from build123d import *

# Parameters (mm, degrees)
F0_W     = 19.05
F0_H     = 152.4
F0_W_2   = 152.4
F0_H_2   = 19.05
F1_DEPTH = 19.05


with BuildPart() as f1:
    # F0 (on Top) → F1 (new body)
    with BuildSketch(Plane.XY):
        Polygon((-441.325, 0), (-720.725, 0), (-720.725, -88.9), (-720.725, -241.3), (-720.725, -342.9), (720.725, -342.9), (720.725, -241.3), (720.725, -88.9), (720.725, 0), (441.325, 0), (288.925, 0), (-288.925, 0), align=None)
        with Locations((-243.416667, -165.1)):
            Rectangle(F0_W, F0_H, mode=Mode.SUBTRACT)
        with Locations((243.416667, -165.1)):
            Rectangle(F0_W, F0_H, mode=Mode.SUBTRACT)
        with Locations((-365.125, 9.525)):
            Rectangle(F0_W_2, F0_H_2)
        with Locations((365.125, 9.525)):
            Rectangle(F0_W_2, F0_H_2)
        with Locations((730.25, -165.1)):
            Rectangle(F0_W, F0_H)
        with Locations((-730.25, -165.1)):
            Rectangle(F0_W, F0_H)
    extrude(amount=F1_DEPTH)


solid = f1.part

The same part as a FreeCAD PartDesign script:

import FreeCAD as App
import Part
import Sketcher
from FreeCAD import Vector
Q = App.Units.Quantity

doc = App.newDocument("Part")
body = doc.addObject("PartDesign::Body", "Body")

# Sketch on XY plane
sketch1 = doc.addObject("Sketcher::SketchObject", "Sketch")
body.addObject(sketch1)
sketch1.AttachmentSupport = (doc.XY_Plane, [""])
sketch1.MapMode = "FlatFace"
sketch1.addGeometry(Part.LineSegment(Vector(-720.725, 0, 0), Vector(-720.725, -88.9, 0)), False)
sketch1.addGeometry(Part.LineSegment(Vector(-720.725, -88.9, 0), Vector(-739.775, -88.9, 0)), False)
sketch1.addGeometry(Part.LineSegment(Vector(-739.775, -88.9, 0), Vector(-739.775, -241.3, 0)), False)
sketch1.addGeometry(Part.LineSegment(Vector(-739.775, -241.3, 0), Vector(-720.725, -241.3, 0)), False)
sketch1.addGeometry(Part.LineSegment(Vector(-720.725, -241.3, 0), Vector(-720.725, -342.9, 0)), False)
sketch1.addGeometry(Part.LineSegment(Vector(-720.725, -342.9, 0), Vector(720.725, -342.9, 0)), False)
sketch1.addGeometry(Part.LineSegment(Vector(720.725, -342.9, 0), Vector(720.725, -241.3, 0)), False)
sketch1.addGeometry(Part.LineSegment(Vector(720.725, -241.3, 0), Vector(739.775, -241.3, 0)), False)
sketch1.addGeometry(Part.LineSegment(Vector(739.775, -241.3, 0), Vector(739.775, -88.9, 0)), False)
sketch1.addGeometry(Part.LineSegment(Vector(739.775, -88.9, 0), Vector(720.725, -88.9, 0)), False)
sketch1.addGeometry(Part.LineSegment(Vector(720.725, -88.9, 0), Vector(720.725, 0, 0)), False)
sketch1.addGeometry(Part.LineSegment(Vector(720.725, 0, 0), Vector(441.325, 0, 0)), False)
sketch1.addGeometry(Part.LineSegment(Vector(441.325, 0, 0), Vector(441.325, 19.05, 0)), False)
sketch1.addGeometry(Part.LineSegment(Vector(441.325, 19.05, 0), Vector(288.925, 19.05, 0)), False)
sketch1.addGeometry(Part.LineSegment(Vector(288.925, 19.05, 0), Vector(288.925, 0, 0)), False)
sketch1.addGeometry(Part.LineSegment(Vector(288.925, 0, 0), Vector(-288.925, 0, 0)), False)
sketch1.addGeometry(Part.LineSegment(Vector(-288.925, 0, 0), Vector(-288.925, 19.05, 0)), False)
sketch1.addGeometry(Part.LineSegment(Vector(-288.925, 19.05, 0), Vector(-441.325, 19.05, 0)), False)
sketch1.addGeometry(Part.LineSegment(Vector(-441.325, 19.05, 0), Vector(-441.325, 0, 0)), False)
sketch1.addGeometry(Part.LineSegment(Vector(-441.325, 0, 0), Vector(-720.725, 0, 0)), False)
sketch1.addGeometry(Part.LineSegment(Vector(-233.891667, -241.3, 0), Vector(-252.941667, -241.3, 0)), False)
sketch1.addGeometry(Part.LineSegment(Vector(-252.941667, -241.3, 0), Vector(-252.941667, -88.9, 0)), False)
sketch1.addGeometry(Part.LineSegment(Vector(-252.941667, -88.9, 0), Vector(-233.891667, -88.9, 0)), False)
sketch1.addGeometry(Part.LineSegment(Vector(-233.891667, -88.9, 0), Vector(-233.891667, -241.3, 0)), False)
sketch1.addGeometry(Part.LineSegment(Vector(252.941667, -241.3, 0), Vector(233.891667, -241.3, 0)), False)
sketch1.addGeometry(Part.LineSegment(Vector(233.891667, -241.3, 0), Vector(233.891667, -88.9, 0)), False)
sketch1.addGeometry(Part.LineSegment(Vector(233.891667, -88.9, 0), Vector(252.941667, -88.9, 0)), False)
sketch1.addGeometry(Part.LineSegment(Vector(252.941667, -88.9, 0), Vector(252.941667, -241.3, 0)), False)
sketch1.addConstraint(Sketcher.Constraint("Coincident", 0, 2, 1, 1))
sketch1.addConstraint(Sketcher.Constraint("Coincident", 1, 2, 2, 1))
sketch1.addConstraint(Sketcher.Constraint("Coincident", 2, 2, 3, 1))
sketch1.addConstraint(Sketcher.Constraint("Coincident", 3, 2, 4, 1))
sketch1.addConstraint(Sketcher.Constraint("Coincident", 4, 2, 5, 1))
sketch1.addConstraint(Sketcher.Constraint("Coincident", 5, 2, 6, 1))
sketch1.addConstraint(Sketcher.Constraint("Coincident", 6, 2, 7, 1))
sketch1.addConstraint(Sketcher.Constraint("Coincident", 7, 2, 8, 1))
sketch1.addConstraint(Sketcher.Constraint("Coincident", 8, 2, 9, 1))
sketch1.addConstraint(Sketcher.Constraint("Coincident", 9, 2, 10, 1))
sketch1.addConstraint(Sketcher.Constraint("Coincident", 10, 2, 11, 1))
sketch1.addConstraint(Sketcher.Constraint("Coincident", 11, 2, 12, 1))
sketch1.addConstraint(Sketcher.Constraint("Coincident", 12, 2, 13, 1))
sketch1.addConstraint(Sketcher.Constraint("Coincident", 13, 2, 14, 1))
sketch1.addConstraint(Sketcher.Constraint("Coincident", 14, 2, 15, 1))
sketch1.addConstraint(Sketcher.Constraint("Coincident", 15, 2, 16, 1))
sketch1.addConstraint(Sketcher.Constraint("Coincident", 16, 2, 17, 1))
sketch1.addConstraint(Sketcher.Constraint("Coincident", 17, 2, 18, 1))
sketch1.addConstraint(Sketcher.Constraint("Coincident", 18, 2, 19, 1))
sketch1.addConstraint(Sketcher.Constraint("Coincident", 19, 2, 0, 1))
sketch1.addConstraint(Sketcher.Constraint("Coincident", 20, 2, 21, 1))
sketch1.addConstraint(Sketcher.Constraint("Coincident", 21, 2, 22, 1))
sketch1.addConstraint(Sketcher.Constraint("Coincident", 22, 2, 23, 1))
sketch1.addConstraint(Sketcher.Constraint("Coincident", 23, 2, 20, 1))
sketch1.addConstraint(Sketcher.Constraint("Coincident", 24, 2, 25, 1))
sketch1.addConstraint(Sketcher.Constraint("Coincident", 25, 2, 26, 1))
sketch1.addConstraint(Sketcher.Constraint("Coincident", 26, 2, 27, 1))
sketch1.addConstraint(Sketcher.Constraint("Coincident", 27, 2, 24, 1))
sketch1.addConstraint(Sketcher.Constraint("Vertical", 0))
sketch1.addConstraint(Sketcher.Constraint("Horizontal", 1))
sketch1.addConstraint(Sketcher.Constraint("Vertical", 2))
sketch1.addConstraint(Sketcher.Constraint("Horizontal", 3))
sketch1.addConstraint(Sketcher.Constraint("Vertical", 4))
sketch1.addConstraint(Sketcher.Constraint("Horizontal", 5))
sketch1.addConstraint(Sketcher.Constraint("Vertical", 6))
sketch1.addConstraint(Sketcher.Constraint("Horizontal", 7))
sketch1.addConstraint(Sketcher.Constraint("Vertical", 8))
sketch1.addConstraint(Sketcher.Constraint("Horizontal", 9))
sketch1.addConstraint(Sketcher.Constraint("Vertical", 10))
sketch1.addConstraint(Sketcher.Constraint("Horizontal", 11))
sketch1.addConstraint(Sketcher.Constraint("Vertical", 12))
sketch1.addConstraint(Sketcher.Constraint("Horizontal", 13))
sketch1.addConstraint(Sketcher.Constraint("Vertical", 14))
sketch1.addConstraint(Sketcher.Constraint("Horizontal", 15))
sketch1.addConstraint(Sketcher.Constraint("Vertical", 16))
sketch1.addConstraint(Sketcher.Constraint("Horizontal", 17))
sketch1.addConstraint(Sketcher.Constraint("Vertical", 18))
sketch1.addConstraint(Sketcher.Constraint("Horizontal", 19))
sketch1.addConstraint(Sketcher.Constraint("Horizontal", 20))
sketch1.addConstraint(Sketcher.Constraint("Vertical", 21))
sketch1.addConstraint(Sketcher.Constraint("Horizontal", 22))
sketch1.addConstraint(Sketcher.Constraint("Vertical", 23))
sketch1.addConstraint(Sketcher.Constraint("Horizontal", 24))
sketch1.addConstraint(Sketcher.Constraint("Vertical", 25))
sketch1.addConstraint(Sketcher.Constraint("Horizontal", 26))
sketch1.addConstraint(Sketcher.Constraint("Vertical", 27))
sketch1.addConstraint(Sketcher.Constraint("Symmetric", 14, 2, 15, 2, -1, 1))
sketch1.addConstraint(Sketcher.Constraint("Symmetric", 11, 2, 18, 2, -1, 1))
sketch1.addConstraint(Sketcher.Constraint("Symmetric", 3, 2, 6, 2, -2))
sketch1.addConstraint(Sketcher.Constraint("Symmetric", 1, 2, 8, 2, -2))
sketch1.addConstraint(Sketcher.Constraint("Symmetric", 10, 2, 19, 2, -2))
sketch1.addConstraint(Sketcher.Constraint("Symmetric", 23, 2, 24, 2, -2))
sketch1.addConstraint(Sketcher.Constraint("Symmetric", 21, 2, 26, 2, -2))
sketch1.addConstraint(Sketcher.Constraint("Horizontal", 13, 2, 16, 2))
sketch1.addConstraint(Sketcher.Constraint("Horizontal", 7, 2, 20, 2))
sketch1.addConstraint(Sketcher.Constraint("Horizontal", 9, 2, 21, 2))
sketch1.addConstraint(Sketcher.Constraint("Vertical", 0, 2, 3, 2))
sketch1.addConstraint(Sketcher.Constraint("Equal", 9, 20))
sketch1.addConstraint(Sketcher.Constraint("Equal", 17, 2))
sketch1.addConstraint(Sketcher.Constraint("Equal", 26, 12))
sketch1.addConstraint(Sketcher.Constraint("DistanceX", 11, 2, 11, 1, Q("11 in")))
sketch1.addConstraint(Sketcher.Constraint("DistanceX", 13, 2, 13, 1, Q("6 in")))
sketch1.addConstraint(Sketcher.Constraint("DistanceY", 4, 2, 4, 1, Q("4 in")))
sketch1.addConstraint(Sketcher.Constraint("DistanceY", 0, 2, 0, 1, Q("3.5 in")))
sketch1.addConstraint(Sketcher.Constraint("DistanceX", 1, 2, 1, 1, Q("0.75 in")))
sketch1.addConstraint(Sketcher.Constraint("DistanceX", 5, 1, 5, 2, Q("56.75 in")))
sketch1.addConstraint(Sketcher.Constraint("DistanceX", 20, 2, -1, 1, 252.941667))
pad1 = doc.addObject("PartDesign::Pad", "Pad")
body.addObject(pad1)
pad1.Profile = sketch1
pad1.Length = Q("0.75 in")

doc.recompute()
